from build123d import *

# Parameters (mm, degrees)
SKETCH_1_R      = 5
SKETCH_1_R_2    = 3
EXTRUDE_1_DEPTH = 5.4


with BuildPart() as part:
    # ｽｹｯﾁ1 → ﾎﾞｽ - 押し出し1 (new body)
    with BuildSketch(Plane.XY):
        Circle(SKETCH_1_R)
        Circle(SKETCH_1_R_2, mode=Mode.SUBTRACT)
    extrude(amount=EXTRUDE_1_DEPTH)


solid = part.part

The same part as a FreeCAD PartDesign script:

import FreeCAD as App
import Part
import Sketcher
Q = App.Units.Quantity

doc = App.newDocument("Part")
body = doc.addObject("PartDesign::Body", "Body")

sketch1 = doc.addObject("Sketcher::SketchObject", "Sketch")
body.addObject(sketch1)
sketch1.AttachmentSupport = (doc.XY_Plane, [""])
sketch1.MapMode = "FlatFace"
sketch1.addGeometry([
    Part.Circle(App.Vector(0, 0, 0), App.Vector(0, 0, 1), 5),
    Part.Circle(App.Vector(0, 0, 0), App.Vector(0, 0, 1), 3),
], False)
sketch1.addConstraint([
    Sketcher.Constraint("Coincident", 0, 3, -1, 1),
    Sketcher.Constraint("Coincident", 1, 3, -1, 1),
    Sketcher.Constraint("Diameter", 0, Q("10 mm")),
    Sketcher.Constraint("Diameter", 1, Q("6 mm")),
])
pad1 = doc.addObject("PartDesign::Pad", "Pad")
body.addObject(pad1)
pad1.Profile = sketch1
pad1.Length = 5.4

doc.recompute()
